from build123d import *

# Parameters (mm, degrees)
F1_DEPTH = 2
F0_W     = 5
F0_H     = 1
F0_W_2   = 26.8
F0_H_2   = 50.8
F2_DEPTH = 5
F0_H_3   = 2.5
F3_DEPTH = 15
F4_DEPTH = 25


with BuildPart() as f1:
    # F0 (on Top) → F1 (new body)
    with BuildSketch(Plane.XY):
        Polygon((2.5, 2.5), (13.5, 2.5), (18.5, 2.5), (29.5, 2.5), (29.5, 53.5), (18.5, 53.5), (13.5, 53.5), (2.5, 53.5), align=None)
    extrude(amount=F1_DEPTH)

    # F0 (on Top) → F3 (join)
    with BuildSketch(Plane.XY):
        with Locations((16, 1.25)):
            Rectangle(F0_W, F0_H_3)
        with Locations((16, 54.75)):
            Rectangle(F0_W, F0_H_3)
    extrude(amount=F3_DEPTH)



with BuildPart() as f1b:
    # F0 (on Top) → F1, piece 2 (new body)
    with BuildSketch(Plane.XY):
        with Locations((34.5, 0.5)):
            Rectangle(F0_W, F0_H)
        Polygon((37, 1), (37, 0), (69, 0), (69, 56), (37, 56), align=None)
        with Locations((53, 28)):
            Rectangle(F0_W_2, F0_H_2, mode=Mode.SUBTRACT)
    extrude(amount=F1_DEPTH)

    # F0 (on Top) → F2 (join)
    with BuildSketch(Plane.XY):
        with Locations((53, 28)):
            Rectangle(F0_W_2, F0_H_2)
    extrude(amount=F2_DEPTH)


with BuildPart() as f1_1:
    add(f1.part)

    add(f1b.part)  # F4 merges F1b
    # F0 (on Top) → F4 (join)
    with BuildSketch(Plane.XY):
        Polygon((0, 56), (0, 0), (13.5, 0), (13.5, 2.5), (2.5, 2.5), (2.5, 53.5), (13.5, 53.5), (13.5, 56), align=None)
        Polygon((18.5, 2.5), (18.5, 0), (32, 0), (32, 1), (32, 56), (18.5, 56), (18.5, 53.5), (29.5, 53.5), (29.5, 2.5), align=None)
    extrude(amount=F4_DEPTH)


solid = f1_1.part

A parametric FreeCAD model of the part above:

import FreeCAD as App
import Part
import Sketcher

doc = App.newDocument("Part")
params = doc.addObject("Spreadsheet::Sheet", "Params")
for row, (alias, value) in enumerate([
    ("sketch1_width", "27 mm"),
    ("sketch1_height", "51 mm"),
    ("pad1_length", "2 mm"),
    ("sketch2_width", "5 mm"),
    ("sketch2_height", "2.5 mm"),
    ("pad2_length", "15 mm"),
    ("sketch3_width", "37 mm"),
    ("sketch3_width2", "32 mm"),
    ("sketch3_height", "1 mm"),
    ("sketch3_height2", "56 mm"),
    ("sketch3_width3", "26.8 mm"),
    ("pad3_length", "2 mm"),
    ("sketch4_width", "26.8 mm"),
    ("sketch4_height", "50.8 mm"),
    ("pad4_length", "5 mm"),
    ("sketch5_width", "11 mm"),
    ("sketch5_height", "56 mm"),
    ("sketch5_height2", "51 mm"),
    ("sketch5_width2", "13.5 mm"),
    ("pad5_length", "25 mm"),
], start=1):
    params.set(f"A{row}", alias)
    params.set(f"B{row}", "=" + value)
    params.setAlias(f"B{row}", alias)

body = doc.addObject("PartDesign::Body", "Body")

# Sketch on XY plane
sketch1 = body.newObject("Sketcher::SketchObject", "Sketch")
sketch1.AttachmentSupport = (doc.getObject("XY_Plane"), [""])
sketch1.MapMode = "FlatFace"
sketch1.addGeometry([
    Part.LineSegment(App.Vector(2.5, 2.5, 0), App.Vector(29.5, 2.5, 0)),
    Part.LineSegment(App.Vector(29.5, 2.5, 0), App.Vector(29.5, 53.5, 0)),
    Part.LineSegment(App.Vector(29.5, 53.5, 0), App.Vector(2.5, 53.5, 0)),
    Part.LineSegment(App.Vector(2.5, 53.5, 0), App.Vector(2.5, 2.5, 0)),
], False)
sketch1.addConstraint([
    Sketcher.Constraint("Coincident", 0, 2, 1, 1),
    Sketcher.Constraint("Coincident", 1, 2, 2, 1),
    Sketcher.Constraint("Coincident", 2, 2, 3, 1),
    Sketcher.Constraint("Coincident", 3, 2, 0, 1),
    Sketcher.Constraint("Horizontal", 0),
    Sketcher.Constraint("Vertical", 1),
    Sketcher.Constraint("Horizontal", 2),
    Sketcher.Constraint("Vertical", 3),
    Sketcher.Constraint("DistanceX", 0, 1, 0, 2, 27.0),
    Sketcher.Constraint("DistanceY", 1, 1, 1, 2, 51.0),
    Sketcher.Constraint("DistanceX", -1, 1, 0, 2, 29.5),
    Sketcher.Constraint("DistanceY", -1, 1, 0, 2, 2.5),
])
sketch1.setExpression("Constraints[8]", "Params.sketch1_width")
sketch1.setExpression("Constraints[9]", "Params.sketch1_height")
pad1 = body.newObject("PartDesign::Pad", "Pad")
pad1.Profile = sketch1
pad1.setExpression("Length", "Params.pad1_length")

# Sketch on XY plane
sketch2 = body.newObject("Sketcher::SketchObject", "Sketch001")
sketch2.AttachmentSupport = (doc.getObject("XY_Plane"), [""])
sketch2.MapMode = "FlatFace"
sketch2.addGeometry([
    Part.LineSegment(App.Vector(13.5, 2.5, 0), App.Vector(13.5, 0, 0)),  # 0
    Part.LineSegment(App.Vector(13.5, 0, 0), App.Vector(18.5, 0, 0)),  # 1
    Part.LineSegment(App.Vector(18.5, 0, 0), App.Vector(18.5, 2.5, 0)),  # 2
    Part.LineSegment(App.Vector(18.5, 2.5, 0), App.Vector(13.5, 2.5, 0)),  # 3
    Part.LineSegment(App.Vector(13.5, 56, 0), App.Vector(13.5, 53.5, 0)),  # 4
    Part.LineSegment(App.Vector(13.5, 53.5, 0), App.Vector(18.5, 53.5, 0)),  # 5
    Part.LineSegment(App.Vector(18.5, 53.5, 0), App.Vector(18.5, 56, 0)),  # 6
    Part.LineSegment(App.Vector(18.5, 56, 0), App.Vector(13.5, 56, 0)),  # 7
], False)
sketch2.addConstraint([
    Sketcher.Constraint("Coincident", 0, 2, 1, 1),
    Sketcher.Constraint("Coincident", 1, 2, 2, 1),
    Sketcher.Constraint("Coincident", 2, 2, 3, 1),
    Sketcher.Constraint("Coincident", 3, 2, 0, 1),
    Sketcher.Constraint("Coincident", 4, 2, 5, 1),
    Sketcher.Constraint("Coincident", 5, 2, 6, 1),
    Sketcher.Constraint("Coincident", 6, 2, 7, 1),
    Sketcher.Constraint("Coincident", 7, 2, 4, 1),
    Sketcher.Constraint("Vertical", 0),
    Sketcher.Constraint("Horizontal", 1),
    Sketcher.Constraint("Vertical", 2),
    Sketcher.Constraint("Horizontal", 3),
    Sketcher.Constraint("Vertical", 4),
    Sketcher.Constraint("Horizontal", 5),
    Sketcher.Constraint("Vertical", 6),
    Sketcher.Constraint("Horizontal", 7),
    Sketcher.Constraint("PointOnObject", 0, 2, -1),
    Sketcher.Constraint("Vertical", 3, 2, 4, 2),
    Sketcher.Constraint("Vertical", 2, 2, 5, 2),
    Sketcher.Constraint("Equal", 2, 4),
    Sketcher.Constraint("DistanceX", 1, 1, 1, 2, 5.0),
    Sketcher.Constraint("DistanceY", 0, 2, 0, 1, 2.5),
    Sketcher.Constraint("DistanceY", -1, 1, 6, 2, 56.0),
    Sketcher.Constraint("DistanceX", -1, 1, 0, 2, 13.5),
])
sketch2.setExpression("Constraints[20]", "Params.sketch2_width")
sketch2.setExpression("Constraints[21]", "Params.sketch2_height")
pad2 = body.newObject("PartDesign::Pad", "Pad001")
pad2.Profile = sketch2
pad2.setExpression("Length", "Params.pad2_length")
body2 = doc.addObject("PartDesign::Body", "Body001")

# Sketch on XY plane
sketch3 = body2.newObject("Sketcher::SketchObject", "Sketch002")
sketch3.AttachmentSupport = (doc.getObject("XY_Plane001"), [""])
sketch3.MapMode = "FlatFace"
sketch3.addGeometry([
    Part.LineSegment(App.Vector(32, 1, 0), App.Vector(32, 0, 0)),  # 0
    Part.LineSegment(App.Vector(32, 0, 0), App.Vector(69, 0, 0)),  # 1
    Part.LineSegment(App.Vector(69, 0, 0), App.Vector(69, 56, 0)),  # 2
    Part.LineSegment(App.Vector(69, 56, 0), App.Vector(37, 56, 0)),  # 3
    Part.LineSegment(App.Vector(37, 56, 0), App.Vector(37, 1, 0)),  # 4
    Part.LineSegment(App.Vector(37, 1, 0), App.Vector(32, 1, 0)),  # 5
    Part.LineSegment(App.Vector(66.4, 2.6, 0), App.Vector(39.6, 2.6, 0)),  # 6
    Part.LineSegment(App.Vector(39.6, 2.6, 0), App.Vector(39.6, 53.4, 0)),  # 7
    Part.LineSegment(App.Vector(39.6, 53.4, 0), App.Vector(66.4, 53.4, 0)),  # 8
    Part.LineSegment(App.Vector(66.4, 53.4, 0), App.Vector(66.4, 2.6, 0)),  # 9
], False)
sketch3.addConstraint([
    Sketcher.Constraint("Coincident", 0, 2, 1, 1),
    Sketcher.Constraint("Coincident", 1, 2, 2, 1),
    Sketcher.Constraint("Coincident", 2, 2, 3, 1),
    Sketcher.Constraint("Coincident", 3, 2, 4, 1),
    Sketcher.Constraint("Coincident", 4, 2, 5, 1),
    Sketcher.Constraint("Coincident", 5, 2, 0, 1),
    Sketcher.Constraint("Coincident", 6, 2, 7, 1),
    Sketcher.Constraint("Coincident", 7, 2, 8, 1),
    Sketcher.Constraint("Coincident", 8, 2, 9, 1),
    Sketcher.Constraint("Coincident", 9, 2, 6, 1),
    Sketcher.Constraint("Vertical", 0),
    Sketcher.Constraint("Horizontal", 1),
    Sketcher.Constraint("Vertical", 2),
    Sketcher.Constraint("Horizontal", 3),
    Sketcher.Constraint("Vertical", 4),
    Sketcher.Constraint("Horizontal", 5),
    Sketcher.Constraint("Horizontal", 6),
    Sketcher.Constraint("Vertical", 7),
    Sketcher.Constraint("Horizontal", 8),
    Sketcher.Constraint("Vertical", 9),
    Sketcher.Constraint("PointOnObject", 0, 2, -1),
    Sketcher.Constraint("DistanceX", 1, 1, 1, 2, 37.0),
    Sketcher.Constraint("DistanceX", 3, 2, 3, 1, 32.0),
    Sketcher.Constraint("DistanceY", 0, 2, 0, 1, 1.0),
    Sketcher.Constraint("DistanceY", 2, 1, 2, 2, 56.0),
    Sketcher.Constraint("DistanceX", 6, 2, 6, 1, 26.8),
    Sketcher.Constraint("DistanceY", 7, 1, 7, 2, 50.8),
    Sketcher.Constraint("DistanceX", -1, 1, 0, 2, 32.0),
    Sketcher.Constraint("DistanceX", -1, 1, 6, 2, 39.6),
    Sketcher.Constraint("DistanceY", -1, 1, 6, 2, 2.6),
])
sketch3.setExpression("Constraints[21]", "Params.sketch3_width")
sketch3.setExpression("Constraints[22]", "Params.sketch3_width2")
sketch3.setExpression("Constraints[23]", "Params.sketch3_height")
sketch3.setExpression("Constraints[24]", "Params.sketch3_height2")
sketch3.setExpression("Constraints[25]", "Params.sketch3_width3")
pad3 = body2.newObject("PartDesign::Pad", "Pad002")
pad3.Profile = sketch3
pad3.setExpression("Length", "Params.pad3_length")

# Sketch on XY plane
sketch4 = body2.newObject("Sketcher::SketchObject", "Sketch003")
sketch4.AttachmentSupport = (doc.getObject("XY_Plane001"), [""])
sketch4.MapMode = "FlatFace"
sketch4.addGeometry([
    Part.LineSegment(App.Vector(39.6, 53.4, 0), App.Vector(39.6, 2.6, 0)),
    Part.LineSegment(App.Vector(39.6, 2.6, 0), App.Vector(66.4, 2.6, 0)),
    Part.LineSegment(App.Vector(66.4, 2.6, 0), App.Vector(66.4, 53.4, 0)),
    Part.LineSegment(App.Vector(66.4, 53.4, 0), App.Vector(39.6, 53.4, 0)),
], False)
sketch4.addConstraint([
    Sketcher.Constraint("Coincident", 0, 2, 1, 1),
    Sketcher.Constraint("Coincident", 1, 2, 2, 1),
    Sketcher.Constraint("Coincident", 2, 2, 3, 1),
    Sketcher.Constraint("Coincident", 3, 2, 0, 1),
    Sketcher.Constraint("Vertical", 0),
    Sketcher.Constraint("Horizontal", 1),
    Sketcher.Constraint("Vertical", 2),
    Sketcher.Constraint("Horizontal", 3),
    Sketcher.Constraint("DistanceX", 1, 1, 1, 2, 26.8),
    Sketcher.Constraint("DistanceY", 0, 2, 0, 1, 50.8),
    Sketcher.Constraint("DistanceX", -1, 1, 0, 2, 39.6),
    Sketcher.Constraint("DistanceY", -1, 1, 0, 2, 2.6),
])
sketch4.setExpression("Constraints[8]", "Params.sketch4_width")
sketch4.setExpression("Constraints[9]", "Params.sketch4_height")
pad4 = body2.newObject("PartDesign::Pad", "Pad003")
pad4.Profile = sketch4
pad4.setExpression("Length", "Params.pad4_length")
body.AllowCompound = True
doc.recompute()

boolean = body.newObject("PartDesign::Boolean", "Boolean")
boolean.Type = "Fuse"
boolean.addObjects([body2])

# Sketch on XY plane
sketch5 = body.newObject("Sketcher::SketchObject", "Sketch004")
sketch5.AttachmentSupport = (doc.getObject("XY_Plane"), [""])
sketch5.MapMode = "FlatFace"
sketch5.addGeometry([
    Part.LineSegment(App.Vector(0, 56, 0), App.Vector(0, 0, 0)),  # 0
    Part.LineSegment(App.Vector(0, 0, 0), App.Vector(13.5, 0, 0)),  # 1
    Part.LineSegment(App.Vector(13.5, 0, 0), App.Vector(13.5, 2.5, 0)),  # 2
    Part.LineSegment(App.Vector(13.5, 2.5, 0), App.Vector(2.5, 2.5, 0)),  # 3
    Part.LineSegment(App.Vector(2.5, 2.5, 0), App.Vector(2.5, 53.5, 0)),  # 4
    Part.LineSegment(App.Vector(2.5, 53.5, 0), App.Vector(13.5, 53.5, 0)),  # 5
    Part.LineSegment(App.Vector(13.5, 53.5, 0), App.Vector(13.5, 56, 0)),  # 6
    Part.LineSegment(App.Vector(13.5, 56, 0), App.Vector(0, 56, 0)),  # 7
    Part.LineSegment(App.Vector(18.5, 2.5, 0), App.Vector(18.5, 0, 0)),  # 8
    Part.LineSegment(App.Vector(18.5, 0, 0), App.Vector(32, 0, 0)),  # 9
    Part.LineSegment(App.Vector(32, 0, 0), App.Vector(32, 56, 0)),  # 10
    Part.LineSegment(App.Vector(32, 56, 0), App.Vector(18.5, 56, 0)),  # 11
    Part.LineSegment(App.Vector(18.5, 56, 0), App.Vector(18.5, 53.5, 0)),  # 12
    Part.LineSegment(App.Vector(18.5, 53.5, 0), App.Vector(29.5, 53.5, 0)),  # 13
    Part.LineSegment(App.Vector(29.5, 53.5, 0), App.Vector(29.5, 2.5, 0)),  # 14
    Part.LineSegment(App.Vector(29.5, 2.5, 0), App.Vector(18.5, 2.5, 0)),  # 15
], False)
sketch5.addConstraint([
    Sketcher.Constraint("Coincident", 0, 2, 1, 1),
    Sketcher.Constraint("Coincident", 1, 2, 2, 1),
    Sketcher.Constraint("Coincident", 2, 2, 3, 1),
    Sketcher.Constraint("Coincident", 3, 2, 4, 1),
    Sketcher.Constraint("Coincident", 4, 2, 5, 1),
    Sketcher.Constraint("Coincident", 5, 2, 6, 1),
    Sketcher.Constraint("Coincident", 6, 2, 7, 1),
    Sketcher.Constraint("Coincident", 7, 2, 0, 1),
    Sketcher.Constraint("Coincident", 8, 2, 9, 1),
    Sketcher.Constraint("Coincident", 9, 2, 10, 1),
    Sketcher.Constraint("Coincident", 10, 2, 11, 1),
    Sketcher.Constraint("Coincident", 11, 2, 12, 1),
    Sketcher.Constraint("Coincident", 12, 2, 13, 1),
    Sketcher.Constraint("Coincident", 13, 2, 14, 1),
    Sketcher.Constraint("Coincident", 14, 2, 15, 1),
    Sketcher.Constraint("Coincident", 15, 2, 8, 1),
    Sketcher.Constraint("Vertical", 0),
    Sketcher.Constraint("Horizontal", 1),
    Sketcher.Constraint("Vertical", 2),
    Sketcher.Constraint("Horizontal", 3),
    Sketcher.Constraint("Vertical", 4),
    Sketcher.Constraint("Horizontal", 5),
    Sketcher.Constraint("Vertical", 6),
    Sketcher.Constraint("Horizontal", 7),
    Sketcher.Constraint("Vertical", 8),
    Sketcher.Constraint("Horizontal", 9),
    Sketcher.Constraint("Vertical", 10),
    Sketcher.Constraint("Horizontal", 11),
    Sketcher.Constraint("Vertical", 12),
    Sketcher.Constraint("Horizontal", 13),
    Sketcher.Constraint("Vertical", 14),
    Sketcher.Constraint("Horizontal", 15),
    Sketcher.Constraint("Coincident", 0, 2, -1, 1),
    Sketcher.Constraint("PointOnObject", 8, 2, -1),
    Sketcher.Constraint("Horizontal", 7, 2, 10, 2),
    Sketcher.Constraint("Horizontal", 5, 2, 12, 2),
    Sketcher.Constraint("Horizontal", 3, 2, 14, 2),
    Sketcher.Constraint("Vertical", 2, 2, 5, 2),
    Sketcher.Constraint("Vertical", 8, 2, 11, 2),
    Sketcher.Constraint("Equal", 7, 9),
    Sketcher.Constraint("Equal", 5, 13),
    Sketcher.Constraint("Equal", 2, 6),
    Sketcher.Constraint("DistanceX", 3, 2, 3, 1, 11.0),
    Sketcher.Constraint("DistanceY", 0, 2, 0, 1, 56.0),
    Sketcher.Constraint("DistanceY", 4, 1, 4, 2, 51.0),
    Sketcher.Constraint("DistanceX", 1, 1, 1, 2, 13.5),
    Sketcher.Constraint("DistanceX", -1, 1, 9, 2, 32.0),
])
sketch5.setExpression("Constraints[42]", "Params.sketch5_width")
sketch5.setExpression("Constraints[43]", "Params.sketch5_height")
sketch5.setExpression("Constraints[44]", "Params.sketch5_height2")
sketch5.setExpression("Constraints[45]", "Params.sketch5_width2")
pad5 = body.newObject("PartDesign::Pad", "Pad004")
pad5.Profile = sketch5
pad5.setExpression("Length", "Params.pad5_length")

doc.recompute()
